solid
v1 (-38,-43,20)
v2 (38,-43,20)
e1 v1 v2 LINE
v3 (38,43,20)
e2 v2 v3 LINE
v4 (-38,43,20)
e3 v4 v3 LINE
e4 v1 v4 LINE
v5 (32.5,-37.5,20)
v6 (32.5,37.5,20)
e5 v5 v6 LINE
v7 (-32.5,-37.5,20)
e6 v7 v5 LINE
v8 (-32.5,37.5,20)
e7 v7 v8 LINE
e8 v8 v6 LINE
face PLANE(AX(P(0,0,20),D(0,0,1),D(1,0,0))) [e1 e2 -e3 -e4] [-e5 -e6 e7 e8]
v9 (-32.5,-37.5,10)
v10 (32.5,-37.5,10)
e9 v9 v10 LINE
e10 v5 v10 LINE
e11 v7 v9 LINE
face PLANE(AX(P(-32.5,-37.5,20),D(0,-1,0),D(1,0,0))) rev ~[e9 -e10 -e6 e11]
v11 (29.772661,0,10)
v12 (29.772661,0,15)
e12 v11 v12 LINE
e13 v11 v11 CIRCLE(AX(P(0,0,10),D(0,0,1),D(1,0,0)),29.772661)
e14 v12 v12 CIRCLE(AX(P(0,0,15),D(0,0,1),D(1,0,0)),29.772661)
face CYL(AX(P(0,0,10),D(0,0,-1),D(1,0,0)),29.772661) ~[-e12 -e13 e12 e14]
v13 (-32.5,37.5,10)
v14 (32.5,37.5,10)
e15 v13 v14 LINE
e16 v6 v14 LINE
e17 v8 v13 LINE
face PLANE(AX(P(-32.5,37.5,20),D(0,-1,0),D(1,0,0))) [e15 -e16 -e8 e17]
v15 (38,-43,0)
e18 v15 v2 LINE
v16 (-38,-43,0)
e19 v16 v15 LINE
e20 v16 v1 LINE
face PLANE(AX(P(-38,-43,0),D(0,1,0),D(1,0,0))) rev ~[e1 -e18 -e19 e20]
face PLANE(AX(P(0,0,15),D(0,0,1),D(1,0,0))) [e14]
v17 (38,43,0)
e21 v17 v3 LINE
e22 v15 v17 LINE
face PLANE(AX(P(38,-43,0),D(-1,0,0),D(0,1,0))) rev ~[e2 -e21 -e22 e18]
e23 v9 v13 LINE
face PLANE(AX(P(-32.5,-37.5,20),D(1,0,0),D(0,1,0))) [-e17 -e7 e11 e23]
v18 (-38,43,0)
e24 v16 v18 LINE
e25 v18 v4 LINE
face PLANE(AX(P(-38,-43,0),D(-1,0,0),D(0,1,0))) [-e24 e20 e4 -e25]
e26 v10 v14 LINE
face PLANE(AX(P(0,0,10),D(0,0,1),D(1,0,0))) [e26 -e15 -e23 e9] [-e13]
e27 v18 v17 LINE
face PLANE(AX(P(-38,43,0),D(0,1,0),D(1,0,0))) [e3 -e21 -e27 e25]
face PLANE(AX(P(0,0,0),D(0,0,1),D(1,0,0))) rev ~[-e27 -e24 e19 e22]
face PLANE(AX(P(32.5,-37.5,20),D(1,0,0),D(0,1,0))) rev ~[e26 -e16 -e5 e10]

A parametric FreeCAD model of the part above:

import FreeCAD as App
import Part
import Sketcher

V = App.Vector


def add_polygon(sketch, points):
    """Adds a closed chain of lines whose ends are joined by coincident constraints."""
    first, n = sketch.GeometryCount, len(points)
    for a, b in zip(points, points[1:] + points[:1]):
        sketch.addGeometry(Part.LineSegment(App.Vector(*a, 0), App.Vector(*b, 0)), False)
    for i in range(n):
        sketch.addConstraint(Sketcher.Constraint("Coincident", first + i, 2, first + (i + 1) % n, 1))

doc = App.newDocument("Part")
body = doc.addObject("PartDesign::Body", "Body")

# Sketch on XY plane
sketch1 = body.newObject("Sketcher::SketchObject", "Sketch")
sketch1.AttachmentSupport = (doc.getObject("XY_Plane"), [""])
sketch1.MapMode = "FlatFace"
add_polygon(sketch1, [(-38, 43), (-38, -43), (38, -43), (38, 43)])  # lines 0-3
sketch1.addConstraint(Sketcher.Constraint("Vertical", 0))
sketch1.addConstraint(Sketcher.Constraint("Horizontal", 1))
sketch1.addConstraint(Sketcher.Constraint("Vertical", 2))
sketch1.addConstraint(Sketcher.Constraint("Horizontal", 3))
sketch1.addConstraint(Sketcher.Constraint("Symmetric", 0, 2, 2, 2, -1, 1))
sketch1.addConstraint(Sketcher.Constraint("DistanceX", 1, 1, 1, 2, 76.0))
sketch1.addConstraint(Sketcher.Constraint("DistanceY", 0, 2, 0, 1, 86.0))
pad1 = body.newObject("PartDesign::Pad", "Pad")
pad1.Profile = sketch1
pad1.Length = 20

# Sketch on XY plane
sketch2 = body.newObject("Sketcher::SketchObject", "Sketch001")
sketch2.AttachmentSupport = (doc.getObject("XY_Plane"), [""])
sketch2.MapMode = "FlatFace"
sketch2.AttachmentOffset = App.Placement(V(0, 0, 20), App.Rotation())
add_polygon(sketch2, [(-32, 38), (-32, -38), (32, -38), (32, 38)])  # lines 0-3
sketch2.addConstraint(Sketcher.Constraint("Vertical", 0))
sketch2.addConstraint(Sketcher.Constraint("Horizontal", 1))
sketch2.addConstraint(Sketcher.Constraint("Vertical", 2))
sketch2.addConstraint(Sketcher.Constraint("Horizontal", 3))
sketch2.addConstraint(Sketcher.Constraint("Symmetric", 0, 2, 2, 2, -1, 1))
sketch2.addConstraint(Sketcher.Constraint("DistanceX", 1, 1, 1, 2, 65.0))
sketch2.addConstraint(Sketcher.Constraint("DistanceY", 0, 2, 0, 1, 75.0))
pocket1 = body.newObject("PartDesign::Pocket", "Pocket")
pocket1.Profile = sketch2
pocket1.Length = 10

# Sketch on XY plane
sketch3 = body.newObject("Sketcher::SketchObject", "Sketch002")
sketch3.AttachmentSupport = (doc.getObject("XY_Plane"), [""])
sketch3.MapMode = "FlatFace"
sketch3.AttachmentOffset = App.Placement(V(0, 0, 10), App.Rotation())
sketch3.addGeometry(Part.Circle(V(0, 0, 0), V(0, 0, 1), 30), False)
sketch3.addConstraint(Sketcher.Constraint("Coincident", 0, 3, -1, 1))
sketch3.addConstraint(Sketcher.Constraint("Diameter", 0, 59.545322))
pad2 = body.newObject("PartDesign::Pad", "Pad001")
pad2.Profile = sketch3
pad2.Length = 5

doc.recompute()
